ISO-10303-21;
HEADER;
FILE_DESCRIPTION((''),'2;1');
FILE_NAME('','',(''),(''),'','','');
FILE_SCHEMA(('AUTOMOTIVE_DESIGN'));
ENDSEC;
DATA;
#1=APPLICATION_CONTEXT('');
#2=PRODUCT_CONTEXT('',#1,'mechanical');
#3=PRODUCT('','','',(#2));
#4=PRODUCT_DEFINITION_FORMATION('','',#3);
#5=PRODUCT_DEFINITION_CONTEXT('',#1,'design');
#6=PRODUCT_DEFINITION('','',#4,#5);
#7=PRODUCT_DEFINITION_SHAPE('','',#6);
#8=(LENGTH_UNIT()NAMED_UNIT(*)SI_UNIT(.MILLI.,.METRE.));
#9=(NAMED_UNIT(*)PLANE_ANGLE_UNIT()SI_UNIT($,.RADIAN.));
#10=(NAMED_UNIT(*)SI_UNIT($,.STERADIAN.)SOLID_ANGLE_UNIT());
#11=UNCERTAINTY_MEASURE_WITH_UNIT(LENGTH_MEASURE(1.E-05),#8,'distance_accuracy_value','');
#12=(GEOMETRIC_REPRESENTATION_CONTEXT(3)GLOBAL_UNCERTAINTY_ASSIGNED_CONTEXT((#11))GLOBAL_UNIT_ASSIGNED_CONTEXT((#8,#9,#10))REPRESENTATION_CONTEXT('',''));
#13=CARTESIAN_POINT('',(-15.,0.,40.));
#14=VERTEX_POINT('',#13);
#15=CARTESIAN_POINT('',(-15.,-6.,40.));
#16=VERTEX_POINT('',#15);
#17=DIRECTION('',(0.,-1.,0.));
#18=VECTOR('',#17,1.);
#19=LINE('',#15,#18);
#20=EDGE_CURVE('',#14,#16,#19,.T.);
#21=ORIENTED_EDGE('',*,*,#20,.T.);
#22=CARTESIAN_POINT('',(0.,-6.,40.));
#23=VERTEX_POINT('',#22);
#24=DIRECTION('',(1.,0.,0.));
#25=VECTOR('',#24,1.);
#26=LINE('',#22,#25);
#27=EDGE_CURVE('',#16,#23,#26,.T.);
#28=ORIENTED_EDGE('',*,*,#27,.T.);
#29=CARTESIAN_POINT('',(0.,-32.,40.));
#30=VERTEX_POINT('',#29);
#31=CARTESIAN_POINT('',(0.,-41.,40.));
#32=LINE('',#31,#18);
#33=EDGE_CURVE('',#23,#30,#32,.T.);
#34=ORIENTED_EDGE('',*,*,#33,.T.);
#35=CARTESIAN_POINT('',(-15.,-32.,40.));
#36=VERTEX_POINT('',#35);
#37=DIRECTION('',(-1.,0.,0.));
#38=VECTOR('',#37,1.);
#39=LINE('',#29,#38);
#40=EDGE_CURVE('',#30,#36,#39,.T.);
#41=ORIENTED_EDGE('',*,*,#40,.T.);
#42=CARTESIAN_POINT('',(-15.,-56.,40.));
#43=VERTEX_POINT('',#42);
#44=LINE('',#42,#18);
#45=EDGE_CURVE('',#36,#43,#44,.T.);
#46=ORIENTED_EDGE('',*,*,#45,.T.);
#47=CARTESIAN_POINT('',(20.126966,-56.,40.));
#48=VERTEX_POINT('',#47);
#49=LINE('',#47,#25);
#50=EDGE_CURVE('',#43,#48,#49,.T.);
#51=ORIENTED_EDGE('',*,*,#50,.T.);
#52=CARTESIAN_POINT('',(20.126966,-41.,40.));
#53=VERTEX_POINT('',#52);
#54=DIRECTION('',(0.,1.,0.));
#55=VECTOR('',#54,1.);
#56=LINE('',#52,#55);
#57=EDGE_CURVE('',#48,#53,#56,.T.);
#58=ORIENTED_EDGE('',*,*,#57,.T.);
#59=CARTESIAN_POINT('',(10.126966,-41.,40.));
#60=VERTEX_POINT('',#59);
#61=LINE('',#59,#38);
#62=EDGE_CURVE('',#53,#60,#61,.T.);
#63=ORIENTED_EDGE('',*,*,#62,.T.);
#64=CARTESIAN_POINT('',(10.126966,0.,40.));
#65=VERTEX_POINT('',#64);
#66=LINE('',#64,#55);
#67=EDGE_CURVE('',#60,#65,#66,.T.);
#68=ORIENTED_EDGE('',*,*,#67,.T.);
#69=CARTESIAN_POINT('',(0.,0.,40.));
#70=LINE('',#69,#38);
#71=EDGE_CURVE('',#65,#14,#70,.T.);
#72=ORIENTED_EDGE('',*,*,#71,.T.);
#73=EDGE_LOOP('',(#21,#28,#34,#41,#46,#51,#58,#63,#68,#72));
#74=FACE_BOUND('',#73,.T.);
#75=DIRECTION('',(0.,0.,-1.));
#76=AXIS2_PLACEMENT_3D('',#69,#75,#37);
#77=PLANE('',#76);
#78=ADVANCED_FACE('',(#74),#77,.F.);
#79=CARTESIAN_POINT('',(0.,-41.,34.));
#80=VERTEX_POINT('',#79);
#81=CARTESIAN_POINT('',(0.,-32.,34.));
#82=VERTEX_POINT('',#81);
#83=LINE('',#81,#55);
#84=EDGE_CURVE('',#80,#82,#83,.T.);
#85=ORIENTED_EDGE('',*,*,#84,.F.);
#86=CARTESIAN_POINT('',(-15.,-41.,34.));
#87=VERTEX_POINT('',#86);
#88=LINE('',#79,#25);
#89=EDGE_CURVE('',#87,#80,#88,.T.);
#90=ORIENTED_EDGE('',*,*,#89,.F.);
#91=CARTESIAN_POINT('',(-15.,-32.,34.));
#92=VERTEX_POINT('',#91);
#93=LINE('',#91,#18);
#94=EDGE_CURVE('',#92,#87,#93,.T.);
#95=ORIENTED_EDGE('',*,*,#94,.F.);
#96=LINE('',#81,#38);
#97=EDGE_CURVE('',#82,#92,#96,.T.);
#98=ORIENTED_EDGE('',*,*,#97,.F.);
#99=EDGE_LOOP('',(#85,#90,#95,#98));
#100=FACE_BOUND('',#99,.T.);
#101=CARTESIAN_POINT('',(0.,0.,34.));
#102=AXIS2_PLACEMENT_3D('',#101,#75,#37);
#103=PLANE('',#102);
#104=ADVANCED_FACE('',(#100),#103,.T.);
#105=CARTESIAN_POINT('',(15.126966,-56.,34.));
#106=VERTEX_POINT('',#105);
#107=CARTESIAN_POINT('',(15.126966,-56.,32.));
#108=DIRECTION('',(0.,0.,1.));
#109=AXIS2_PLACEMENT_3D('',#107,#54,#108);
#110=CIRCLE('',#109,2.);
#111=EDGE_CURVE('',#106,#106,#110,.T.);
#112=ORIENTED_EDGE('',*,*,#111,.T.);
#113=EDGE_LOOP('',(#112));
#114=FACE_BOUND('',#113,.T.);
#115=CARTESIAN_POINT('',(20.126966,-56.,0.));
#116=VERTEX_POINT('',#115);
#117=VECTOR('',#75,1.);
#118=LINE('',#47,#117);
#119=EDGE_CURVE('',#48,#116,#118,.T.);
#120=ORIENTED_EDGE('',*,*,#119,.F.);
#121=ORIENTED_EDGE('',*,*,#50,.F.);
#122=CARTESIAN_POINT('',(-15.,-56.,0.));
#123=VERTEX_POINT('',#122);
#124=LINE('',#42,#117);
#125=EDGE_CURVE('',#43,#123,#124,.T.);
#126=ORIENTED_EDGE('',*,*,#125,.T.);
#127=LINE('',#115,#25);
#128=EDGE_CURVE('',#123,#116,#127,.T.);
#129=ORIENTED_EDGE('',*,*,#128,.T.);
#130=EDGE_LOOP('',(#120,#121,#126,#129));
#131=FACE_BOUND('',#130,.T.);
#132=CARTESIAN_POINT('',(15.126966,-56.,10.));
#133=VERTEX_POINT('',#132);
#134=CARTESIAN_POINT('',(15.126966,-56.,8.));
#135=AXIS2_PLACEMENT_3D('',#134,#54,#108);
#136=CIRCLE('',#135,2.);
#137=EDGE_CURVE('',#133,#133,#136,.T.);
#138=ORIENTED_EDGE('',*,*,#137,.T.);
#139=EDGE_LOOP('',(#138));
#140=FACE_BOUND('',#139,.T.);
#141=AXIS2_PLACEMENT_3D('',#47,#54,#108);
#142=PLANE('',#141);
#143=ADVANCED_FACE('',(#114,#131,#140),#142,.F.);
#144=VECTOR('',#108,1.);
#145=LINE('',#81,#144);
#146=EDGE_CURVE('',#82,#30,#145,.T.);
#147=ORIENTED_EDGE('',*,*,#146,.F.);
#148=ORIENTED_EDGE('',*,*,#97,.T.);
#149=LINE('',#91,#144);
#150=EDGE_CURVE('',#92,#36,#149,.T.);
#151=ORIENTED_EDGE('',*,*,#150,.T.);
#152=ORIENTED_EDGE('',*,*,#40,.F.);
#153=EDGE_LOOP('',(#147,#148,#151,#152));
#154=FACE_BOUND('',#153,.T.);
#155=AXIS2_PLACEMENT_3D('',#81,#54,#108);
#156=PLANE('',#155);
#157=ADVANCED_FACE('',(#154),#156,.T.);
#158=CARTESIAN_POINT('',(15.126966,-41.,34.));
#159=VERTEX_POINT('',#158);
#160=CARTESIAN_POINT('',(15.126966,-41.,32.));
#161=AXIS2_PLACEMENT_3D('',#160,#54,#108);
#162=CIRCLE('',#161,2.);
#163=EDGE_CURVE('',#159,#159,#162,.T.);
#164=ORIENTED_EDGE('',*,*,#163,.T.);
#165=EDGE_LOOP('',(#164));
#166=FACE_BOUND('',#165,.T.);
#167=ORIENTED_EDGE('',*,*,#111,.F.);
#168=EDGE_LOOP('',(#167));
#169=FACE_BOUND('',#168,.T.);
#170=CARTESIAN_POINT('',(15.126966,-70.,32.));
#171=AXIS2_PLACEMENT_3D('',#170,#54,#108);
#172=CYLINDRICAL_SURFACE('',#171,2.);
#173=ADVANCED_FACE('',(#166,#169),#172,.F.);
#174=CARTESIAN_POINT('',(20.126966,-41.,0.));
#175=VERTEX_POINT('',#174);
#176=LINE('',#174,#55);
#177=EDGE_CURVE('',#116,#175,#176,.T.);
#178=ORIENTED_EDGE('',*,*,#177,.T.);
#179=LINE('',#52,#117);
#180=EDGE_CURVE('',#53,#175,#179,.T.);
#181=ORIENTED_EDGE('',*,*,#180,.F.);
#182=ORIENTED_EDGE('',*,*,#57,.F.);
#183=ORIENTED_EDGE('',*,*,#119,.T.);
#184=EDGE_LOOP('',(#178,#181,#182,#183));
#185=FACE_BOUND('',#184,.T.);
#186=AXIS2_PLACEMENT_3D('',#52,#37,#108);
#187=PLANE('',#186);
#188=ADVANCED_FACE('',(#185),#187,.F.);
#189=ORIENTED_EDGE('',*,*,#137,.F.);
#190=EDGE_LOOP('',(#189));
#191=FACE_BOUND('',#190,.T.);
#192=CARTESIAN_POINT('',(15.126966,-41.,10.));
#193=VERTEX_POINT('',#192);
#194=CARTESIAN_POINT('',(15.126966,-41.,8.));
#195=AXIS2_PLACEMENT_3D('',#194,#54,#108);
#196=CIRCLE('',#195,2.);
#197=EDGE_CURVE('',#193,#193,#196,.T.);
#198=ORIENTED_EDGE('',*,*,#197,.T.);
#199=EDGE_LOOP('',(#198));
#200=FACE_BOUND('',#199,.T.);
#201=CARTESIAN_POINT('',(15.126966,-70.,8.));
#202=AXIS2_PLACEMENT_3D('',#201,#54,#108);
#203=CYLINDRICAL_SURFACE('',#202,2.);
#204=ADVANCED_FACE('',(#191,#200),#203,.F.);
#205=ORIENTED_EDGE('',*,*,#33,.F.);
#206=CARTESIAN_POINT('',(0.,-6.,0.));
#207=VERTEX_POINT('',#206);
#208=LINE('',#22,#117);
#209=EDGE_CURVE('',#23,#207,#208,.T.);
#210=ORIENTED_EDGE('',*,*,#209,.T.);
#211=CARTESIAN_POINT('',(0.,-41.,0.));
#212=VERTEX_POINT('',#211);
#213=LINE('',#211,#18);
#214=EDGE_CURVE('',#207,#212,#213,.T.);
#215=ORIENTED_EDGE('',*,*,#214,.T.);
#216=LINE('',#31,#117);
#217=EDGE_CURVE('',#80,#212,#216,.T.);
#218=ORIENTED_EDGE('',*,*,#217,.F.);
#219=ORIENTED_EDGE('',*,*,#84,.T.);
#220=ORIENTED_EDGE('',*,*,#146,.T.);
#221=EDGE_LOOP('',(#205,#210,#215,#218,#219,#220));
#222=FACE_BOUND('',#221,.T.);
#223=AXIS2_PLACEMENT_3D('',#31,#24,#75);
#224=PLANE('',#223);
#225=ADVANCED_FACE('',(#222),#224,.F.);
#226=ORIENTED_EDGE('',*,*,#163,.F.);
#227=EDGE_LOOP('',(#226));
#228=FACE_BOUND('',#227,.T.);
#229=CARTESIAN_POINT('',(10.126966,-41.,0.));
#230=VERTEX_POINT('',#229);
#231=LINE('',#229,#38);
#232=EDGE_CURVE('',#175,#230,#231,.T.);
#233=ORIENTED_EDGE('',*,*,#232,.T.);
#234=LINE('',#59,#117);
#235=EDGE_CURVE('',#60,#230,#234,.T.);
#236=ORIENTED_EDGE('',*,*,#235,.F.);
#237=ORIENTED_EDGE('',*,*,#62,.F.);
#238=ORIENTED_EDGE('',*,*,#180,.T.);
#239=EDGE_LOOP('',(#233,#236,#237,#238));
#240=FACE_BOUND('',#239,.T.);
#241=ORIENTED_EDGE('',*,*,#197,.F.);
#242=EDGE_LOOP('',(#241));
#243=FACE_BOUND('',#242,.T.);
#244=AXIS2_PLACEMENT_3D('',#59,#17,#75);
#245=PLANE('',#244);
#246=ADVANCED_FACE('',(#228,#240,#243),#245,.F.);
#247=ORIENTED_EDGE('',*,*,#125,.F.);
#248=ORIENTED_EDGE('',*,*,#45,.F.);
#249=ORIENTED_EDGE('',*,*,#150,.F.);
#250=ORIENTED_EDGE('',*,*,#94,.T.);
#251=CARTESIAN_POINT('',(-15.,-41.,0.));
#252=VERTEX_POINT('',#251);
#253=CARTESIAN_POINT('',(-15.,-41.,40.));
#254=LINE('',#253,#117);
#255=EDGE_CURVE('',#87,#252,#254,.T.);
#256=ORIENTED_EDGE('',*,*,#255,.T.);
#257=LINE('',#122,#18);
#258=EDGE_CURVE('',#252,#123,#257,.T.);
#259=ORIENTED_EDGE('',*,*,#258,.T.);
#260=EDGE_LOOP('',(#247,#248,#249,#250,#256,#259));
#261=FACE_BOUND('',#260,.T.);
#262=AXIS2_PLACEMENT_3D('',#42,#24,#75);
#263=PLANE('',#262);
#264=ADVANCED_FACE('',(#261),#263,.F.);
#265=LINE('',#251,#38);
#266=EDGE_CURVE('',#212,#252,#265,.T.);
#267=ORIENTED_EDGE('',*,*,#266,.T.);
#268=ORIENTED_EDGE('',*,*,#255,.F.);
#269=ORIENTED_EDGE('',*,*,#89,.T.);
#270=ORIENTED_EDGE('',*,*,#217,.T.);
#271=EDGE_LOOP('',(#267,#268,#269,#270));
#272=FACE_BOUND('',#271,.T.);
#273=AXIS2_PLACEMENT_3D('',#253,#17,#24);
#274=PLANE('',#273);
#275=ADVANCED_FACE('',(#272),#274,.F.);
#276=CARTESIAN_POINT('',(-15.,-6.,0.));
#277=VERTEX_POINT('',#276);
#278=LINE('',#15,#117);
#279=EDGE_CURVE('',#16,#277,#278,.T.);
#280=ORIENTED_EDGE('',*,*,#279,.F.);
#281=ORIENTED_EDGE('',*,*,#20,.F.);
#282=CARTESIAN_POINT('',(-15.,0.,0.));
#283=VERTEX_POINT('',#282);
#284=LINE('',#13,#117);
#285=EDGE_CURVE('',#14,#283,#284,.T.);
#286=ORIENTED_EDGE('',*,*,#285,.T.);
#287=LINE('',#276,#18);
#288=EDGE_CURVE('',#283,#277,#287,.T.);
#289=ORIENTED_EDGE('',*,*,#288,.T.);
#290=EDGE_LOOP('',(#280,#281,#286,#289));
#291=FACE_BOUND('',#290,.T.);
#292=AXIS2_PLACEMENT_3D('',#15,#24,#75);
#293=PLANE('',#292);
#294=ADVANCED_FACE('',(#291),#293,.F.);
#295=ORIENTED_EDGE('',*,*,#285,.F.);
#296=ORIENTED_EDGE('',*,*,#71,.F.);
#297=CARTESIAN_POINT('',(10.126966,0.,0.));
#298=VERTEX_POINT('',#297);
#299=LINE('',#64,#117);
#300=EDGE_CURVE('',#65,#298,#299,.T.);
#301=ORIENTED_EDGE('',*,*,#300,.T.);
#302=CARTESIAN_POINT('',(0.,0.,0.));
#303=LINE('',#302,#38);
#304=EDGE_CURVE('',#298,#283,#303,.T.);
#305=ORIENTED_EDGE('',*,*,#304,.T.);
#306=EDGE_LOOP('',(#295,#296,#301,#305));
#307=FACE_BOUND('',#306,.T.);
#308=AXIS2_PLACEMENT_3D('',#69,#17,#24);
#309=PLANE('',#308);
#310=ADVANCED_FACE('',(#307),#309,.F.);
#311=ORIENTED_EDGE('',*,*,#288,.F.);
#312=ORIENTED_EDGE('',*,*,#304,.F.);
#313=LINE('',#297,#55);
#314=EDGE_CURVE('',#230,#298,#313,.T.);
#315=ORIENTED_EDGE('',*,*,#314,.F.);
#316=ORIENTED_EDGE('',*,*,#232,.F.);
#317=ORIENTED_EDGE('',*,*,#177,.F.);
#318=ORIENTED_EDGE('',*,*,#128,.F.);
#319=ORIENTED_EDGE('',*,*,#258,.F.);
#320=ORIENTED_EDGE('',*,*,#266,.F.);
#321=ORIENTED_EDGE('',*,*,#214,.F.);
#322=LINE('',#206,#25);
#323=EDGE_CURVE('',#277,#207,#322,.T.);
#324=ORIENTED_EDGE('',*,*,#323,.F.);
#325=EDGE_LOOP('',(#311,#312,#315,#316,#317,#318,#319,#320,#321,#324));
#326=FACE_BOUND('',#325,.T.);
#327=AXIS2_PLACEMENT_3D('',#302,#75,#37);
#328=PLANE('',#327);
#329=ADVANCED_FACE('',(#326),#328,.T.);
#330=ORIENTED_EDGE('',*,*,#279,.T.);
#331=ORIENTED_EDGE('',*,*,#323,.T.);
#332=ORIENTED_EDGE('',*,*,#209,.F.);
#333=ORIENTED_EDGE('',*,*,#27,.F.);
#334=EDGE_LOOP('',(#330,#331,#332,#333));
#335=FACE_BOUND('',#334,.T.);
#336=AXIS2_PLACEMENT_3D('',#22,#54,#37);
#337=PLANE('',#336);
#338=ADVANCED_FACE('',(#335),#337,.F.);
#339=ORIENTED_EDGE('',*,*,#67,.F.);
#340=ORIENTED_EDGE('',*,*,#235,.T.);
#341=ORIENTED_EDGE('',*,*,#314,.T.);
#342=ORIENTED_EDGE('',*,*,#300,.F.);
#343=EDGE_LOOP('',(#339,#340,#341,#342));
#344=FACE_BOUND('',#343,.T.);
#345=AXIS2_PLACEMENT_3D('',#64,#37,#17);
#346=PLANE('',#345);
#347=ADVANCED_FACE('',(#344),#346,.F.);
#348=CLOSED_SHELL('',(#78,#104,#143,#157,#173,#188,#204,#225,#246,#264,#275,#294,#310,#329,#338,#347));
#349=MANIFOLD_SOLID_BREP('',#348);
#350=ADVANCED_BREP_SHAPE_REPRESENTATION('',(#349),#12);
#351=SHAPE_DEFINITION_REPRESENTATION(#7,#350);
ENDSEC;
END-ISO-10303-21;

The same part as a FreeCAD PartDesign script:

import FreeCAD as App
import Part
import Sketcher
from FreeCAD import Vector
Q = App.Units.Quantity


def add_polygon(sketch, points):
    """Adds a closed chain of lines whose ends are joined by coincident constraints."""
    first, n = sketch.GeometryCount, len(points)
    for a, b in zip(points, points[1:] + points[:1]):
        sketch.addGeometry(Part.LineSegment(App.Vector(*a, 0), App.Vector(*b, 0)), False)
    for i in range(n):
        sketch.addConstraint(Sketcher.Constraint("Coincident", first + i, 2, first + (i + 1) % n, 1))

doc = App.newDocument("Part")
params = doc.addObject("Spreadsheet::Sheet", "Params")
for row, (alias, value) in enumerate([
    ("sketch1_width", "15 mm"),
    ("sketch1_width2", "10 mm"),
    ("sketch1_height", "6 mm"),
    ("sketch1_height2", "35 mm"),
    ("pad1_length", "40 mm"),
    ("sketch2_diameter", "4 mm"),
    ("pocket1_length", "29 mm"),
    ("sketch3_width", "15 mm"),
    ("sketch3_height", "9 mm"),
    ("pad2_length", "6 mm"),
], start=1):
    params.set(f"A{row}", alias)
    params.set(f"B{row}", "=" + value)
    params.setAlias(f"B{row}", alias)

body = doc.addObject("PartDesign::Body", "Body")

sketch1 = doc.addObject("Sketcher::SketchObject", "Sketch")
body.addObject(sketch1)
sketch1.AttachmentSupport = (doc.XY_Plane, [""])
sketch1.MapMode = "FlatFace"
add_polygon(sketch1, [(-15, 0), (-15, -6), (0, -6), (0, -41), (-15, -41), (-15, -56), (20, -56), (20, -41), (10, -41), (10, 0)])
sketch1.addConstraint([
    Sketcher.Constraint("Vertical", 0),
    Sketcher.Constraint("Horizontal", 1),
    Sketcher.Constraint("Vertical", 2),
    Sketcher.Constraint("Horizontal", 3),
    Sketcher.Constraint("Vertical", 4),
    Sketcher.Constraint("Horizontal", 5),
    Sketcher.Constraint("Vertical", 6),
    Sketcher.Constraint("Horizontal", 7),
    Sketcher.Constraint("Vertical", 8),
    Sketcher.Constraint("Horizontal", 9),
    Sketcher.Constraint("PointOnObject", 1, 2, -2),
    Sketcher.Constraint("PointOnObject", 8, 2, -1),
    Sketcher.Constraint("Horizontal", 3, 2, 6, 2),
    Sketcher.Constraint("Vertical", 0, 2, 3, 2),
    Sketcher.Constraint("Equal", 3, 4),
    Sketcher.Constraint("DistanceX", 1, 1, 1, 2, Q("15 mm")),
    Sketcher.Constraint("DistanceX", 7, 2, 7, 1, Q("10 mm")),
    Sketcher.Constraint("DistanceY", 0, 2, 0, 1, Q("6 mm")),
    Sketcher.Constraint("DistanceY", 2, 2, 2, 1, Q("35 mm")),
    Sketcher.Constraint("DistanceX", 5, 1, 5, 2, Q("35.126966 mm")),
])
sketch1.setExpression("Constraints[25]", "Params.sketch1_width")
sketch1.setExpression("Constraints[26]", "Params.sketch1_width2")
sketch1.setExpression("Constraints[27]", "Params.sketch1_height")
sketch1.setExpression("Constraints[28]", "Params.sketch1_height2")
pad1 = doc.addObject("PartDesign::Pad", "Pad")
body.addObject(pad1)
pad1.Profile = sketch1
pad1.setExpression("Length", "Params.pad1_length")

sketch2 = doc.addObject("Sketcher::SketchObject", "Sketch001")
body.addObject(sketch2)
sketch2.AttachmentSupport = (doc.XZ_Plane, [""])
sketch2.MapMode = "FlatFace"
sketch2.AttachmentOffset = App.Placement(Vector(0, 0, 41), App.Rotation())
sketch2.addGeometry([
    Part.Circle(Vector(15.1, 8, 0), Vector(0, 0, 1), 2),
    Part.Circle(Vector(15.1, 32, 0), Vector(0, 0, 1), 2),
], False)
sketch2.addConstraint([
    Sketcher.Constraint("Equal", 0, 1),
    Sketcher.Constraint("Vertical", 0, 3, 1, 3),
    Sketcher.Constraint("Diameter", 0, Q("4 mm")),
    Sketcher.Constraint("DistanceY", -1, 1, 0, 3, Q("8 mm")),
    Sketcher.Constraint("DistanceY", -1, 1, 1, 3, Q("32 mm")),
    Sketcher.Constraint("DistanceX", -1, 1, 0, 3, Q("15.126966 mm")),
])
sketch2.setExpression("Constraints[2]", "Params.sketch2_diameter")
pocket1 = doc.addObject("PartDesign::Pocket", "Pocket")
body.addObject(pocket1)
pocket1.Profile = sketch2
pocket1.setExpression("Length", "Params.pocket1_length")
pocket1.Reversed = True

sketch3 = doc.addObject("Sketcher::SketchObject", "Sketch002")
body.addObject(sketch3)
sketch3.AttachmentSupport = (doc.XY_Plane, [""])
sketch3.MapMode = "FlatFace"
sketch3.AttachmentOffset = App.Placement(Vector(0, 0, 40), App.Rotation())
add_polygon(sketch3, [(-15, -32), (-15, -41), (0, -41), (0, -32)])
sketch3.addConstraint([
    Sketcher.Constraint("Vertical", 0),
    Sketcher.Constraint("Horizontal", 1),
    Sketcher.Constraint("Vertical", 2),
    Sketcher.Constraint("Horizontal", 3),
    Sketcher.Constraint("PointOnObject", 1, 2, -2),
    Sketcher.Constraint("DistanceX", 1, 1, 1, 2, Q("15 mm")),
    Sketcher.Constraint("DistanceY", 0, 2, 0, 1, Q("9 mm")),
    Sketcher.Constraint("DistanceY", 0, 2, -1, 1, Q("41 mm")),
])
sketch3.setExpression("Constraints[9]", "Params.sketch3_width")
sketch3.setExpression("Constraints[10]", "Params.sketch3_height")
pad2 = doc.addObject("PartDesign::Pad", "Pad001")
body.addObject(pad2)
pad2.Profile = sketch3
pad2.setExpression("Length", "Params.pad2_length")
pad2.Reversed = True

doc.recompute()
